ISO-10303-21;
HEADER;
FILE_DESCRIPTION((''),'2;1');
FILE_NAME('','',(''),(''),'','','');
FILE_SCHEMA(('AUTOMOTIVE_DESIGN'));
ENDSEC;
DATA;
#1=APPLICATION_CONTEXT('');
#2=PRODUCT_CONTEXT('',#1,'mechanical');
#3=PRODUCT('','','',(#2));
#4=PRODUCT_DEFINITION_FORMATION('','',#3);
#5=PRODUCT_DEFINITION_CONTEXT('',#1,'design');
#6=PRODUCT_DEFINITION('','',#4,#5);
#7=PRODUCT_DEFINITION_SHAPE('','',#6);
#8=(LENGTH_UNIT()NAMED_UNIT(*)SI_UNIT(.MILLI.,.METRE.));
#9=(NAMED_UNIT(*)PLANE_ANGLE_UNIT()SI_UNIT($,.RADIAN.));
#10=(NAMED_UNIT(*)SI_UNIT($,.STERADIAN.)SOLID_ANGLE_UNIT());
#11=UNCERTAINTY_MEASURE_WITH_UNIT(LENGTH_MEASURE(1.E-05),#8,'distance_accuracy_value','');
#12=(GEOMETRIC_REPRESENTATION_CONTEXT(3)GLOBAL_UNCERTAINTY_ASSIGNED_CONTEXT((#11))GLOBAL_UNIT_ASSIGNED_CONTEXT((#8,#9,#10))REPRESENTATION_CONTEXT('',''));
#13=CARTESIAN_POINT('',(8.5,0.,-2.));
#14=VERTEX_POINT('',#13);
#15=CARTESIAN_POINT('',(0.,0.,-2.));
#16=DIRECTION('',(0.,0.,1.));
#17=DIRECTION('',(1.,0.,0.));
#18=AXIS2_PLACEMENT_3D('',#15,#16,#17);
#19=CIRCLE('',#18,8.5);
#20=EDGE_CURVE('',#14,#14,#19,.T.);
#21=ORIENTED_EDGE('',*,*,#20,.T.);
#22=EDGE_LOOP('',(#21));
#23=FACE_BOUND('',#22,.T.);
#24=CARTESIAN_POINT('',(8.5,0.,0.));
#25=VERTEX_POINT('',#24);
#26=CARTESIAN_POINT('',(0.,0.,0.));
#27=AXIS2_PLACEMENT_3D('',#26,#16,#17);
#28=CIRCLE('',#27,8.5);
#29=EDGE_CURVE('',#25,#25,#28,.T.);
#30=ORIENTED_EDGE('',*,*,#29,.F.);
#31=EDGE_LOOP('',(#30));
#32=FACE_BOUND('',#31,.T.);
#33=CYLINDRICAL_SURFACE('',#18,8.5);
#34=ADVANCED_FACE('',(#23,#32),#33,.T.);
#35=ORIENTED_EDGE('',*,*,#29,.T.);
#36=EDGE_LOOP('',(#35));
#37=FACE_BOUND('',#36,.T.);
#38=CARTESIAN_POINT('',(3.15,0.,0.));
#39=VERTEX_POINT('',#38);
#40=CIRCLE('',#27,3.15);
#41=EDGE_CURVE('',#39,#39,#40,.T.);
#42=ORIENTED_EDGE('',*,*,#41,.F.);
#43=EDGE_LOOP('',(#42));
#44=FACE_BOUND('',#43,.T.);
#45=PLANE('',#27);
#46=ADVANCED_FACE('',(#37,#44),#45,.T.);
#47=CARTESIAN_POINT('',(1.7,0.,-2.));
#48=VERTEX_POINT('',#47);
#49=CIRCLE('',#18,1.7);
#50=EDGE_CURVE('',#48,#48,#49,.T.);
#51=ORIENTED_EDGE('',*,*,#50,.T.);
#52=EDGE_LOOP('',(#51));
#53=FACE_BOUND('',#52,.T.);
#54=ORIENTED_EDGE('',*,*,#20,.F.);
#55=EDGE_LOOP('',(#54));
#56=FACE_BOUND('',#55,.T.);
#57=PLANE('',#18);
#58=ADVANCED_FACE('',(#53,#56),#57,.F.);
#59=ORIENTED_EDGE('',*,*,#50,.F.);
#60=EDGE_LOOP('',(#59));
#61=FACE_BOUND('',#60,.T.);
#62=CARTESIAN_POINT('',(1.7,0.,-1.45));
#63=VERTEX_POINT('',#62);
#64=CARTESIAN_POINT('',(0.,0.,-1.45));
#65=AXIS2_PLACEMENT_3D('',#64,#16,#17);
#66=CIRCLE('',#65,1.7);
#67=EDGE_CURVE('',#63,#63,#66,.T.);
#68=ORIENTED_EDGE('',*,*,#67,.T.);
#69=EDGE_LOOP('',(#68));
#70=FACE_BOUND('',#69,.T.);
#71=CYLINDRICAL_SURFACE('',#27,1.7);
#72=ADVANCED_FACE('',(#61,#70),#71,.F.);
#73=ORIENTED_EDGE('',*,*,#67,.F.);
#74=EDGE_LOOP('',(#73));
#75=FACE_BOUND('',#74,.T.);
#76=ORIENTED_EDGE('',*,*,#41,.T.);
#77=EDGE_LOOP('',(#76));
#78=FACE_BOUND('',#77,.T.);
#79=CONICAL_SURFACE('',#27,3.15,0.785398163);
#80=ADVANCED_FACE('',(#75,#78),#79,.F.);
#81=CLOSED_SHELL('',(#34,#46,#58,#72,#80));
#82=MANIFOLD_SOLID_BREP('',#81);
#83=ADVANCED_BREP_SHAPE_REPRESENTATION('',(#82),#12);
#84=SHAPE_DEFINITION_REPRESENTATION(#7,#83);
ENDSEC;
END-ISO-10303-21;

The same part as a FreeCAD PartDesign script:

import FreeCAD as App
import Part
import Sketcher

V = App.Vector
Q = App.Units.Quantity


def add_polygon(sketch, points):
    """Adds a closed chain of lines whose ends are joined by coincident constraints."""
    first, n = sketch.GeometryCount, len(points)
    for a, b in zip(points, points[1:] + points[:1]):
        sketch.addGeometry(Part.LineSegment(App.Vector(*a, 0), App.Vector(*b, 0)), False)
    for i in range(n):
        sketch.addConstraint(Sketcher.Constraint("Coincident", first + i, 2, first + (i + 1) % n, 1))

doc = App.newDocument("Part")
params = doc.addObject("Spreadsheet::Sheet", "Params")
for row, (alias, value) in enumerate([
    ("sketch1_diameter", "17 mm"),
    ("pad1_length", "2 mm"),
    ("sketch2_height", "2 mm"),
    ("sketch2_width", "1.7 mm"),
    ("sketch2_width2", "3.15 mm"),
    ("groove_angle", "360 deg"),
], start=1):
    params.set(f"A{row}", alias)
    params.set(f"B{row}", "=" + value)
    params.setAlias(f"B{row}", alias)

body = doc.addObject("PartDesign::Body", "Body")

# Sketch on XY plane
sketch1 = body.newObject("Sketcher::SketchObject", "Sketch")
sketch1.AttachmentSupport = (doc.getObject("XY_Plane"), [""])
sketch1.MapMode = "FlatFace"
sketch1.addGeometry(Part.Circle(V(0, 0, 0), V(0, 0, 1), 8.5), False)
sketch1.addConstraint([
    Sketcher.Constraint("Coincident", 0, 3, -1, 1),
    Sketcher.Constraint("Diameter", 0, Q("17 mm")),
])
sketch1.setExpression("Constraints[1]", "Params.sketch1_diameter")
pad1 = body.newObject("PartDesign::Pad", "Pad")
pad1.Profile = sketch1
pad1.setExpression("Length", "Params.pad1_length")
pad1.Reversed = True

# Sketch on YZ plane
sketch2 = body.newObject("Sketcher::SketchObject", "Sketch001")
sketch2.AttachmentSupport = (doc.getObject("YZ_Plane"), [""])
sketch2.MapMode = "FlatFace"
add_polygon(sketch2, [(0, -2), (0, 0), (-3.15, 0), (-1.7, -1.45), (-1.7, -2)])  # lines 0-4
sketch2.addConstraint([
    Sketcher.Constraint("Vertical", 0),
    Sketcher.Constraint("Horizontal", 1),
    Sketcher.Constraint("Vertical", 3),
    Sketcher.Constraint("Horizontal", 4),
    Sketcher.Constraint("Coincident", 0, 2, -1, 1),
    Sketcher.Constraint("DistanceY", 0, 1, 0, 2, Q("2 mm")),
    Sketcher.Constraint("Angle", 2, Q("-45 deg")),
    Sketcher.Constraint("DistanceX", 4, 1, 4, 2, Q("1.7 mm")),
    Sketcher.Constraint("DistanceX", 1, 2, 1, 1, Q("3.15 mm")),
])
sketch2.setExpression("Constraints[10]", "Params.sketch2_height")
sketch2.setExpression("Constraints[12]", "Params.sketch2_width")
sketch2.setExpression("Constraints[13]", "Params.sketch2_width2")
groove = body.newObject("PartDesign::Groove", "Groove")
groove.Profile = sketch2
groove.ReferenceAxis = (sketch2, ["V_Axis"])
groove.setExpression("Angle", "Params.groove_angle")

doc.recompute()
